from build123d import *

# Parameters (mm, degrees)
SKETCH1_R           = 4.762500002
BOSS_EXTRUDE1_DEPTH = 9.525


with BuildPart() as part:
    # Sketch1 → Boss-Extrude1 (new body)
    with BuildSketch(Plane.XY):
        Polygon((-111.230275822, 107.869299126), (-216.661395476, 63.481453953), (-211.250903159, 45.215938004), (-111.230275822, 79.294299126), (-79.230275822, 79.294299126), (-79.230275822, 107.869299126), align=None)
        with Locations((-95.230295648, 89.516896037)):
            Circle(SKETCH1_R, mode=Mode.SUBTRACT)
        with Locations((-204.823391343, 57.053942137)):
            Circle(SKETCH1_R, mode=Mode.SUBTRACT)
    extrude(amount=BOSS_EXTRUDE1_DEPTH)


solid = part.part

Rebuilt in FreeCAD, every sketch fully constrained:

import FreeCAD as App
import Part
import Sketcher
from FreeCAD import Vector
Q = App.Units.Quantity


def add_polygon(sketch, points):
    """Adds a closed chain of lines whose ends are joined by coincident constraints."""
    first, n = sketch.GeometryCount, len(points)
    for a, b in zip(points, points[1:] + points[:1]):
        sketch.addGeometry(Part.LineSegment(App.Vector(*a, 0), App.Vector(*b, 0)), False)
    for i in range(n):
        sketch.addConstraint(Sketcher.Constraint("Coincident", first + i, 2, first + (i + 1) % n, 1))

doc = App.newDocument("Part")
body = doc.addObject("PartDesign::Body", "Body")

# Sketch on XY plane
sketch1 = body.newObject("Sketcher::SketchObject", "Sketch")
sketch1.AttachmentSupport = (doc.getObject("XY_Plane"), [""])
sketch1.MapMode = "FlatFace"
add_polygon(sketch1, [(-111.2, 107.9), (-216.7, 63.5), (-211.3, 45.2), (-111.2, 79.3), (-79.2, 79.3), (-79.2, 107.9)])  # lines 0-5
sketch1.addGeometry(Part.Circle(Vector(-204.8, 57.1, 0), Vector(0, 0, 1), 4.8), False)  # 6
sketch1.addGeometry(Part.Circle(Vector(-95.2, 89.5, 0), Vector(0, 0, 1), 4.8), False)  # 7
sketch1.addConstraint([
    Sketcher.Constraint("Horizontal", 3),
    Sketcher.Constraint("Vertical", 4),
    Sketcher.Constraint("Horizontal", 5),
    Sketcher.Constraint("Equal", 6, 7),
    Sketcher.Constraint("Vertical", 2, 2, 5, 2),
    Sketcher.Constraint("Diameter", 6, Q("0.375 in")),
    Sketcher.Constraint("Angle", 1, Q("-73.5 deg")),
    Sketcher.Constraint("Distance", 1, Q("0.75 in")),
    Sketcher.Constraint("DistanceY", 4, 1, 4, 2, Q("1.125 in")),
    Sketcher.Constraint("DistanceX", 3, 1, 3, 2, Q("32 mm")),
    Sketcher.Constraint("DistanceY", -1, 1, 2, 2, Q("79.294299 mm")),
    Sketcher.Constraint("DistanceX", 0, 2, 7, 3, Q("121.4311 mm")),
    Sketcher.Constraint("DistanceX", 6, 3, -1, 1, Q("204.823391 mm")),
    Sketcher.Constraint("DistanceY", -1, 1, 1, 2, Q("45.215938 mm")),
    Sketcher.Constraint("DistanceY", 6, 3, 0, 2, Q("6.427512 mm")),
    Sketcher.Constraint("DistanceX", 1, 2, 6, 3, Q("6.427512 mm")),
    Sketcher.Constraint("DistanceY", 1, 2, 7, 3, Q("44.300958 mm")),
    Sketcher.Constraint("DistanceX", 2, 2, 7, 3, Q("15.99998 mm")),
])
pad1 = body.newObject("PartDesign::Pad", "Pad")
pad1.Profile = sketch1
pad1.Length = Q("0.375 in")

doc.recompute()
